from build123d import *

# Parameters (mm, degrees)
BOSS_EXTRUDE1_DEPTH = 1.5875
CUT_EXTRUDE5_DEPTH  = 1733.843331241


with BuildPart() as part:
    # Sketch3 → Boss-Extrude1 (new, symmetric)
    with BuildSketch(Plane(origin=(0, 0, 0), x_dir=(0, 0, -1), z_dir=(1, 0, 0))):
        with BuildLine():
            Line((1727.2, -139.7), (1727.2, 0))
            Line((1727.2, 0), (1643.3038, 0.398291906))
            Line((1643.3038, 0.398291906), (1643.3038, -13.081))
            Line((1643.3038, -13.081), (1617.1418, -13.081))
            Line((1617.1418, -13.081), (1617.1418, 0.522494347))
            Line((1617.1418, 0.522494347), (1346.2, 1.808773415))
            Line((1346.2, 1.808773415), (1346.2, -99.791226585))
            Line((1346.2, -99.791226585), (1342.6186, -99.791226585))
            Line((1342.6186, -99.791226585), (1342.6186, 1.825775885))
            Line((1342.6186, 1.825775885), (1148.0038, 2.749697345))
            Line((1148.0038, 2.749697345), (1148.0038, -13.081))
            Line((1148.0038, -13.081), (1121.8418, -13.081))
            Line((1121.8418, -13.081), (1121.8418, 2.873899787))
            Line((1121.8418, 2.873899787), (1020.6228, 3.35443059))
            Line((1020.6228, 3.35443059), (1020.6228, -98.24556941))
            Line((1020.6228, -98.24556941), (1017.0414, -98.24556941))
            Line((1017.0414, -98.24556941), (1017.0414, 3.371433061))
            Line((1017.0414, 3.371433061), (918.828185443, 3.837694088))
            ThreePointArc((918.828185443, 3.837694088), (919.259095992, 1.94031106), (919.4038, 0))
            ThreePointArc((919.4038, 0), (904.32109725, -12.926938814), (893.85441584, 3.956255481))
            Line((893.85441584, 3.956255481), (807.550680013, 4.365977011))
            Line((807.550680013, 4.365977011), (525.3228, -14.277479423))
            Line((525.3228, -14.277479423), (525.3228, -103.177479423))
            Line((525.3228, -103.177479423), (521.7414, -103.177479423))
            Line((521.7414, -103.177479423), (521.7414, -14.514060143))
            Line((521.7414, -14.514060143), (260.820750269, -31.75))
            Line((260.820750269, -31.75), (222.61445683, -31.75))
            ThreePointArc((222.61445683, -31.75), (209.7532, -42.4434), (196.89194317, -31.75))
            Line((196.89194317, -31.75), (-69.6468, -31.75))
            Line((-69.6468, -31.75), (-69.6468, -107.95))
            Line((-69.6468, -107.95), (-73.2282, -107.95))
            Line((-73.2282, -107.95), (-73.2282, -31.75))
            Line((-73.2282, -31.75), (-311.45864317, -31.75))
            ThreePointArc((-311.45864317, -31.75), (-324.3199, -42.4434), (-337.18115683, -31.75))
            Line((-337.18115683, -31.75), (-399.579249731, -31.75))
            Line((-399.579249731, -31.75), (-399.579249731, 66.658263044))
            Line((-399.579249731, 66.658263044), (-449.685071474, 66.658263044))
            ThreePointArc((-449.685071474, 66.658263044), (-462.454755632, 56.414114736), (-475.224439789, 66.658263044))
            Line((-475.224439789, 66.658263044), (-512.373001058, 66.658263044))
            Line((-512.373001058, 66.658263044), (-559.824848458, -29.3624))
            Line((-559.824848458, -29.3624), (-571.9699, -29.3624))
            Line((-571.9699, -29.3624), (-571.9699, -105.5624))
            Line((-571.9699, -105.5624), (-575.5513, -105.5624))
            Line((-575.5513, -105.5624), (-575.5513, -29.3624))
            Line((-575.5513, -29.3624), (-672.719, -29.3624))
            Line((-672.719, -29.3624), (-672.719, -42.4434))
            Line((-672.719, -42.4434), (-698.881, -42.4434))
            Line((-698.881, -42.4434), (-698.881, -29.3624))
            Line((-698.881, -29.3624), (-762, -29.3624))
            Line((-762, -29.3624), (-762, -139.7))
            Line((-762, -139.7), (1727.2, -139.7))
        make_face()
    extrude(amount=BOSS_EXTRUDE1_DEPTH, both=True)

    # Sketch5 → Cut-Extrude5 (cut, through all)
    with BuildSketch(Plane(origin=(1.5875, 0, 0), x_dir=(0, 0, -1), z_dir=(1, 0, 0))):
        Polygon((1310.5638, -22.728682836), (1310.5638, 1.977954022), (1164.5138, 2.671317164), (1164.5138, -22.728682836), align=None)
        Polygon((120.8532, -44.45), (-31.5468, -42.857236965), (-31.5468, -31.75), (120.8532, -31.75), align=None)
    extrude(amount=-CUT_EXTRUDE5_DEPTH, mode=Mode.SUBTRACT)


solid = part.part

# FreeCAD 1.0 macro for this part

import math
import FreeCAD as App
import Part
import Sketcher
Q = App.Units.Quantity


def add_polygon(sketch, points):
    """Adds a closed chain of lines whose ends are joined by coincident constraints."""
    first, n = sketch.GeometryCount, len(points)
    for a, b in zip(points, points[1:] + points[:1]):
        sketch.addGeometry(Part.LineSegment(App.Vector(*a, 0), App.Vector(*b, 0)), False)
    for i in range(n):
        sketch.addConstraint(Sketcher.Constraint("Coincident", first + i, 2, first + (i + 1) % n, 1))

doc = App.newDocument("Part")
params = doc.addObject("Spreadsheet::Sheet", "Params")
for row, (alias, value) in enumerate([
    ("sketch1_width", "4 in"),
    ("sketch1_width2", "3 in"),
    ("sketch1_height", "98 in"),
    ("sketch1_width3", "5.5 in"),
    ("sketch1_width4", "3.5 in"),
    ("pad1_length", "0.125 in"),
    ("sketch2_width", "1 in"),
    ("sketch2_height", "6 in"),
    ("sketch2_width2", "0.5 in"),
    ("sketch2_height2", "5.75 in"),
], start=1):
    params.set(f"A{row}", alias)
    params.set(f"B{row}", "=" + value)
    params.setAlias(f"B{row}", alias)

body = doc.addObject("PartDesign::Body", "Body")

# Sketch on YZ plane
sketch1 = body.newObject("Sketcher::SketchObject", "Sketch")
sketch1.AttachmentSupport = (doc.getObject("YZ_Plane"), [""])
sketch1.MapMode = "FlatFace"
sketch1.addGeometry(Part.LineSegment(App.Vector(-139.7, -1727.2, 0), App.Vector(0, -1727.2, 0)), False)
sketch1.addGeometry(Part.LineSegment(App.Vector(0, -1727.2, 0), App.Vector(0.4, -1643.3, 0)), False)
sketch1.addGeometry(Part.LineSegment(App.Vector(0.4, -1643.3, 0), App.Vector(-13.1, -1643.3, 0)), False)
sketch1.addGeometry(Part.LineSegment(App.Vector(-13.1, -1643.3, 0), App.Vector(-13.1, -1617.1, 0)), False)
sketch1.addGeometry(Part.LineSegment(App.Vector(-13.1, -1617.1, 0), App.Vector(0.5, -1617.1, 0)), False)
sketch1.addGeometry(Part.LineSegment(App.Vector(0.5, -1617.1, 0), App.Vector(1.8, -1346.2, 0)), False)
sketch1.addGeometry(Part.LineSegment(App.Vector(1.8, -1346.2, 0), App.Vector(-99.8, -1346.2, 0)), False)
sketch1.addGeometry(Part.LineSegment(App.Vector(-99.8, -1346.2, 0), App.Vector(-99.8, -1342.6, 0)), False)
sketch1.addGeometry(Part.LineSegment(App.Vector(-99.8, -1342.6, 0), App.Vector(1.8, -1342.6, 0)), False)
sketch1.addGeometry(Part.LineSegment(App.Vector(1.8, -1342.6, 0), App.Vector(2.7, -1148, 0)), False)
sketch1.addGeometry(Part.LineSegment(App.Vector(2.7, -1148, 0), App.Vector(-13.1, -1148, 0)), False)
sketch1.addGeometry(Part.LineSegment(App.Vector(-13.1, -1148, 0), App.Vector(-13.1, -1121.8, 0)), False)
sketch1.addGeometry(Part.LineSegment(App.Vector(-13.1, -1121.8, 0), App.Vector(2.9, -1121.8, 0)), False)
sketch1.addGeometry(Part.LineSegment(App.Vector(2.9, -1121.8, 0), App.Vector(3.4, -1020.6, 0)), False)
sketch1.addGeometry(Part.LineSegment(App.Vector(3.4, -1020.6, 0), App.Vector(-98.2, -1020.6, 0)), False)
sketch1.addGeometry(Part.LineSegment(App.Vector(-98.2, -1020.6, 0), App.Vector(-98.2, -1017, 0)), False)
sketch1.addGeometry(Part.LineSegment(App.Vector(-98.2, -1017, 0), App.Vector(3.4, -1017, 0)), False)
sketch1.addGeometry(Part.LineSegment(App.Vector(3.4, -1017, 0), App.Vector(3.8, -918.8, 0)), False)
sketch1.addGeometry(Part.ArcOfCircle(Part.Circle(App.Vector(0, -906.3, 0), App.Vector(0, 0, 1), 13.1), math.radians(-90), math.radians(-72.94)), False)
sketch1.addGeometry(Part.ArcOfCircle(Part.Circle(App.Vector(0, -906.3, 0), App.Vector(0, 0, 1), 13.1), math.radians(72), math.radians(270)), False)
sketch1.addGeometry(Part.LineSegment(App.Vector(4, -893.9, 0), App.Vector(4.4, -807.6, 0)), False)
sketch1.addGeometry(Part.LineSegment(App.Vector(4.4, -807.6, 0), App.Vector(-14.3, -525.3, 0)), False)
sketch1.addGeometry(Part.LineSegment(App.Vector(-14.3, -525.3, 0), App.Vector(-103.2, -525.3, 0)), False)
sketch1.addGeometry(Part.LineSegment(App.Vector(-103.2, -525.3, 0), App.Vector(-103.2, -521.7, 0)), False)
sketch1.addGeometry(Part.LineSegment(App.Vector(-103.2, -521.7, 0), App.Vector(-14.5, -521.7, 0)), False)
sketch1.addGeometry(Part.LineSegment(App.Vector(-14.5, -521.7, 0), App.Vector(-31.8, -260.8, 0)), False)
sketch1.addGeometry(Part.LineSegment(App.Vector(-31.8, -260.8, 0), App.Vector(-31.8, -222.6, 0)), False)
sketch1.addGeometry(Part.ArcOfCircle(Part.Circle(App.Vector(-29.4, -209.8, 0), App.Vector(0, 0, 1), 13.1), math.radians(101), math.radians(259)), False)
sketch1.addGeometry(Part.LineSegment(App.Vector(-31.8, -196.9, 0), App.Vector(-31.8, 69.6, 0)), False)
sketch1.addGeometry(Part.LineSegment(App.Vector(-31.8, 69.6, 0), App.Vector(-108, 69.6, 0)), False)
sketch1.addGeometry(Part.LineSegment(App.Vector(-108, 69.6, 0), App.Vector(-108, 73.2, 0)), False)
sketch1.addGeometry(Part.LineSegment(App.Vector(-108, 73.2, 0), App.Vector(-31.8, 73.2, 0)), False)
sketch1.addGeometry(Part.LineSegment(App.Vector(-31.8, 73.2, 0), App.Vector(-31.8, 311.5, 0)), False)
sketch1.addGeometry(Part.ArcOfCircle(Part.Circle(App.Vector(-29.4, 324.3, 0), App.Vector(0, 0, 1), 13.1), math.radians(101), math.radians(259)), False)
sketch1.addGeometry(Part.LineSegment(App.Vector(-31.8, 337.2, 0), App.Vector(-31.8, 399.6, 0)), False)
sketch1.addGeometry(Part.LineSegment(App.Vector(-31.8, 399.6, 0), App.Vector(66.7, 399.6, 0)), False)
sketch1.addGeometry(Part.LineSegment(App.Vector(66.7, 399.6, 0), App.Vector(66.7, 449.7, 0)), False)
sketch1.addGeometry(Part.ArcOfCircle(Part.Circle(App.Vector(69.5, 462.5, 0), App.Vector(0, 0, 1), 13.1), math.radians(103), math.radians(257)), False)
sketch1.addGeometry(Part.LineSegment(App.Vector(66.7, 475.2, 0), App.Vector(66.7, 512.4, 0)), False)
sketch1.addGeometry(Part.LineSegment(App.Vector(66.7, 512.4, 0), App.Vector(-29.4, 559.8, 0)), False)
sketch1.addGeometry(Part.LineSegment(App.Vector(-29.4, 559.8, 0), App.Vector(-29.4, 572, 0)), False)
sketch1.addGeometry(Part.LineSegment(App.Vector(-29.4, 572, 0), App.Vector(-105.6, 572, 0)), False)
sketch1.addGeometry(Part.LineSegment(App.Vector(-105.6, 572, 0), App.Vector(-105.6, 575.6, 0)), False)
sketch1.addGeometry(Part.LineSegment(App.Vector(-105.6, 575.6, 0), App.Vector(-29.4, 575.6, 0)), False)
sketch1.addGeometry(Part.LineSegment(App.Vector(-29.4, 575.6, 0), App.Vector(-29.4, 672.7, 0)), False)
sketch1.addGeometry(Part.LineSegment(App.Vector(-29.4, 672.7, 0), App.Vector(-42.4, 672.7, 0)), False)
sketch1.addGeometry(Part.LineSegment(App.Vector(-42.4, 672.7, 0), App.Vector(-42.4, 698.9, 0)), False)
sketch1.addGeometry(Part.LineSegment(App.Vector(-42.4, 698.9, 0), App.Vector(-29.4, 698.9, 0)), False)
sketch1.addGeometry(Part.LineSegment(App.Vector(-29.4, 698.9, 0), App.Vector(-29.4, 762, 0)), False)
sketch1.addGeometry(Part.LineSegment(App.Vector(-29.4, 762, 0), App.Vector(-139.7, 762, 0)), False)
sketch1.addGeometry(Part.LineSegment(App.Vector(-139.7, 762, 0), App.Vector(-139.7, -1727.2, 0)), False)
sketch1.addConstraint(Sketcher.Constraint("Coincident", 0, 2, 1, 1))
sketch1.addConstraint(Sketcher.Constraint("Coincident", 1, 2, 2, 1))
sketch1.addConstraint(Sketcher.Constraint("Coincident", 2, 2, 3, 1))
sketch1.addConstraint(Sketcher.Constraint("Coincident", 3, 2, 4, 1))
sketch1.addConstraint(Sketcher.Constraint("Coincident", 4, 2, 5, 1))
sketch1.addConstraint(Sketcher.Constraint("Coincident", 5, 2, 6, 1))
sketch1.addConstraint(Sketcher.Constraint("Coincident", 6, 2, 7, 1))
sketch1.addConstraint(Sketcher.Constraint("Coincident", 7, 2, 8, 1))
sketch1.addConstraint(Sketcher.Constraint("Coincident", 8, 2, 9, 1))
sketch1.addConstraint(Sketcher.Constraint("Coincident", 9, 2, 10, 1))
sketch1.addConstraint(Sketcher.Constraint("Coincident", 10, 2, 11, 1))
sketch1.addConstraint(Sketcher.Constraint("Coincident", 11, 2, 12, 1))
sketch1.addConstraint(Sketcher.Constraint("Coincident", 12, 2, 13, 1))
sketch1.addConstraint(Sketcher.Constraint("Coincident", 13, 2, 14, 1))
sketch1.addConstraint(Sketcher.Constraint("Coincident", 14, 2, 15, 1))
sketch1.addConstraint(Sketcher.Constraint("Coincident", 15, 2, 16, 1))
sketch1.addConstraint(Sketcher.Constraint("Coincident", 16, 2, 17, 1))
sketch1.addConstraint(Sketcher.Constraint("Coincident", 17, 2, 18, 2))
sketch1.addConstraint(Sketcher.Constraint("Tangent", 18, 1, 19, 2))
sketch1.addConstraint(Sketcher.Constraint("Coincident", 19, 1, 20, 1))
sketch1.addConstraint(Sketcher.Constraint("Coincident", 20, 2, 21, 1))
sketch1.addConstraint(Sketcher.Constraint("Coincident", 21, 2, 22, 1))
sketch1.addConstraint(Sketcher.Constraint("Coincident", 22, 2, 23, 1))
sketch1.addConstraint(Sketcher.Constraint("Coincident", 23, 2, 24, 1))
sketch1.addConstraint(Sketcher.Constraint("Coincident", 24, 2, 25, 1))
sketch1.addConstraint(Sketcher.Constraint("Coincident", 25, 2, 26, 1))
sketch1.addConstraint(Sketcher.Constraint("Coincident", 26, 2, 27, 2))
sketch1.addConstraint(Sketcher.Constraint("Coincident", 27, 1, 28, 1))
sketch1.addConstraint(Sketcher.Constraint("Coincident", 28, 2, 29, 1))
sketch1.addConstraint(Sketcher.Constraint("Coincident", 29, 2, 30, 1))
sketch1.addConstraint(Sketcher.Constraint("Coincident", 30, 2, 31, 1))
sketch1.addConstraint(Sketcher.Constraint("Coincident", 31, 2, 32, 1))
sketch1.addConstraint(Sketcher.Constraint("Coincident", 32, 2, 33, 2))
sketch1.addConstraint(Sketcher.Constraint("Coincident", 33, 1, 34, 1))
sketch1.addConstraint(Sketcher.Constraint("Coincident", 34, 2, 35, 1))
sketch1.addConstraint(Sketcher.Constraint("Coincident", 35, 2, 36, 1))
sketch1.addConstraint(Sketcher.Constraint("Coincident", 36, 2, 37, 2))
sketch1.addConstraint(Sketcher.Constraint("Coincident", 37, 1, 38, 1))
sketch1.addConstraint(Sketcher.Constraint("Coincident", 38, 2, 39, 1))
sketch1.addConstraint(Sketcher.Constraint("Coincident", 39, 2, 40, 1))
sketch1.addConstraint(Sketcher.Constraint("Coincident", 40, 2, 41, 1))
sketch1.addConstraint(Sketcher.Constraint("Coincident", 41, 2, 42, 1))
sketch1.addConstraint(Sketcher.Constraint("Coincident", 42, 2, 43, 1))
sketch1.addConstraint(Sketcher.Constraint("Coincident", 43, 2, 44, 1))
sketch1.addConstraint(Sketcher.Constraint("Coincident", 44, 2, 45, 1))
sketch1.addConstraint(Sketcher.Constraint("Coincident", 45, 2, 46, 1))
sketch1.addConstraint(Sketcher.Constraint("Coincident", 46, 2, 47, 1))
sketch1.addConstraint(Sketcher.Constraint("Coincident", 47, 2, 48, 1))
sketch1.addConstraint(Sketcher.Constraint("Coincident", 48, 2, 49, 1))
sketch1.addConstraint(Sketcher.Constraint("Coincident", 49, 2, 50, 1))
sketch1.addConstraint(Sketcher.Constraint("Coincident", 50, 2, 0, 1))
sketch1.addConstraint(Sketcher.Constraint("Horizontal", 0))
sketch1.addConstraint(Sketcher.Constraint("Horizontal", 2))
sketch1.addConstraint(Sketcher.Constraint("Vertical", 3))
sketch1.addConstraint(Sketcher.Constraint("Horizontal", 4))
sketch1.addConstraint(Sketcher.Constraint("Horizontal", 6))
sketch1.addConstraint(Sketcher.Constraint("Vertical", 7))
sketch1.addConstraint(Sketcher.Constraint("Horizontal", 8))
sketch1.addConstraint(Sketcher.Constraint("Horizontal", 10))
sketch1.addConstraint(Sketcher.Constraint("Vertical", 11))
sketch1.addConstraint(Sketcher.Constraint("Horizontal", 12))
sketch1.addConstraint(Sketcher.Constraint("Horizontal", 14))
sketch1.addConstraint(Sketcher.Constraint("Vertical", 15))
sketch1.addConstraint(Sketcher.Constraint("Horizontal", 16))
sketch1.addConstraint(Sketcher.Constraint("Horizontal", 22))
sketch1.addConstraint(Sketcher.Constraint("Vertical", 23))
sketch1.addConstraint(Sketcher.Constraint("Horizontal", 24))
sketch1.addConstraint(Sketcher.Constraint("Vertical", 26))
sketch1.addConstraint(Sketcher.Constraint("Vertical", 28))
sketch1.addConstraint(Sketcher.Constraint("Horizontal", 29))
sketch1.addConstraint(Sketcher.Constraint("Vertical", 30))
sketch1.addConstraint(Sketcher.Constraint("Horizontal", 31))
sketch1.addConstraint(Sketcher.Constraint("Vertical", 32))
sketch1.addConstraint(Sketcher.Constraint("Vertical", 34))
sketch1.addConstraint(Sketcher.Constraint("Horizontal", 35))
sketch1.addConstraint(Sketcher.Constraint("Vertical", 36))
sketch1.addConstraint(Sketcher.Constraint("Vertical", 38))
sketch1.addConstraint(Sketcher.Constraint("Vertical", 40))
sketch1.addConstraint(Sketcher.Constraint("Horizontal", 41))
sketch1.addConstraint(Sketcher.Constraint("Vertical", 42))
sketch1.addConstraint(Sketcher.Constraint("Horizontal", 43))
sketch1.addConstraint(Sketcher.Constraint("Vertical", 44))
sketch1.addConstraint(Sketcher.Constraint("Horizontal", 45))
sketch1.addConstraint(Sketcher.Constraint("Vertical", 46))
sketch1.addConstraint(Sketcher.Constraint("Horizontal", 47))
sketch1.addConstraint(Sketcher.Constraint("Vertical", 48))
sketch1.addConstraint(Sketcher.Constraint("Horizontal", 49))
sketch1.addConstraint(Sketcher.Constraint("Vertical", 50))
sketch1.addConstraint(Sketcher.Constraint("Equal", 18, 19))
sketch1.addConstraint(Sketcher.Constraint("Equal", 19, 27))
sketch1.addConstraint(Sketcher.Constraint("Equal", 27, 33))
sketch1.addConstraint(Sketcher.Constraint("Equal", 33, 37))
sketch1.addConstraint(Sketcher.Constraint("PointOnObject", 18, 3, -2))
sketch1.addConstraint(Sketcher.Constraint("PointOnObject", 0, 2, -2))
sketch1.addConstraint(Sketcher.Constraint("PointOnObject", 18, 1, -2))
sketch1.addConstraint(Sketcher.Constraint("Parallel", 1, 5))
sketch1.addConstraint(Sketcher.Constraint("Parallel", 5, 9))
sketch1.addConstraint(Sketcher.Constraint("Parallel", 9, 13))
sketch1.addConstraint(Sketcher.Constraint("Parallel", 13, 17))
sketch1.addConstraint(Sketcher.Constraint("Parallel", 17, 20))
sketch1.addConstraint(Sketcher.Constraint("Parallel", 21, 25))
sketch1.addConstraint(Sketcher.Constraint("Vertical", 27, 3, 33, 3))
sketch1.addConstraint(Sketcher.Constraint("Vertical", 3, 2, 10, 2))
sketch1.addConstraint(Sketcher.Constraint("Vertical", 26, 2, 27, 1))
sketch1.addConstraint(Sketcher.Constraint("Vertical", 28, 2, 31, 2))
sketch1.addConstraint(Sketcher.Constraint("Vertical", 32, 2, 33, 1))
sketch1.addConstraint(Sketcher.Constraint("Vertical", 36, 2, 37, 1))
sketch1.addConstraint(Sketcher.Constraint("Vertical", 33, 3, 39, 2))
sketch1.addConstraint(Sketcher.Constraint("Vertical", 40, 2, 43, 2))
sketch1.addConstraint(Sketcher.Constraint("Vertical", 44, 2, 47, 2))
sketch1.addConstraint(Sketcher.Constraint("Equal", 6, 14))
sketch1.addConstraint(Sketcher.Constraint("Equal", 8, 16))
sketch1.addConstraint(Sketcher.Constraint("Equal", 31, 41))
sketch1.addConstraint(Sketcher.Constraint("Equal", 3, 11))
sketch1.addConstraint(Sketcher.Constraint("Equal", 7, 15))
sketch1.addConstraint(Sketcher.Constraint("Equal", 15, 23))
sketch1.addConstraint(Sketcher.Constraint("Equal", 23, 30))
sketch1.addConstraint(Sketcher.Constraint("Equal", 30, 42))
sketch1.addConstraint(Sketcher.Constraint("Equal", 11, 46))
sketch1.addConstraint(Sketcher.Constraint("DistanceX", 6, 2, 6, 1, Q("4 in")))
sketch1.addConstraint(Sketcher.Constraint("DistanceX", 29, 2, 29, 1, Q("3 in")))
sketch1.addConstraint(Sketcher.Constraint("DistanceY", 50, 2, 50, 1, Q("98 in")))
sketch1.addConstraint(Sketcher.Constraint("DistanceX", 0, 1, 0, 2, Q("5.5 in")))
sketch1.addConstraint(Sketcher.Constraint("DistanceX", 22, 2, 22, 1, Q("3.5 in")))
sketch1.addConstraint(Sketcher.Constraint("DistanceY", 0, 2, -1, 1, Q("68 in")))
sketch1.addConstraint(Sketcher.Constraint("DistanceY", 5, 2, -1, 1, Q("53 in")))
sketch1.addConstraint(Sketcher.Constraint("Radius", 18, Q("0.515 in")))
sketch1.addConstraint(Sketcher.Constraint("DistanceY", 19, 3, 21, 2, Q("15 in")))
sketch1.addConstraint(Sketcher.Constraint("DistanceY", 27, 3, 28, 2, Q("11 in")))
sketch1.addConstraint(Sketcher.Constraint("DistanceY", 3, 1, 3, 2, Q("1.03 in")))
sketch1.addConstraint(Sketcher.Constraint("DistanceY", 13, 2, 18, 3, Q("4.5 in")))
sketch1.addConstraint(Sketcher.Constraint("DistanceX", 45, 2, 45, 1, Q("0.515 in")))
sketch1.addConstraint(Sketcher.Constraint("DistanceX", 49, 2, 49, 1, Q("4.344 in")))
sketch1.addConstraint(Sketcher.Constraint("DistanceY", 7, 1, 7, 2, Q("0.141 in")))
sketch1.addConstraint(Sketcher.Constraint("DistanceY", 48, 1, 48, 2, Q("2.485 in")))
sketch1.addConstraint(Sketcher.Constraint("DistanceX", 25, 2, -1, 1, Q("1.25 in")))
sketch1.addConstraint(Sketcher.Constraint("DistanceY", 44, 1, 44, 2, Q("3.8255 in")))
sketch1.addConstraint(Sketcher.Constraint("DistanceY", 18, 3, -1, 1, Q("35.682 in")))
sketch1.addConstraint(Sketcher.Constraint("DistanceY", 27, 3, -1, 1, Q("8.258 in")))
sketch1.addConstraint(Sketcher.Constraint("DistanceY", 1, 2, -1, 1, Q("64.697 in")))
sketch1.addConstraint(Sketcher.Constraint("DistanceX", 2, 2, -1, 1, Q("0.515 in")))
sketch1.addConstraint(Sketcher.Constraint("DistanceY", 9, 2, -1, 1, Q("45.197 in")))
sketch1.addConstraint(Sketcher.Constraint("DistanceX", 12, 1, 12, 2, 15.9549))
sketch1.addConstraint(Sketcher.Constraint("DistanceY", -1, 1, 33, 3, Q("12.7685 in")))
sketch1.addConstraint(Sketcher.Constraint("DistanceX", 2, 2, 2, 1, 13.479292))
sketch1.addConstraint(Sketcher.Constraint("DistanceX", 24, 1, 24, 2, 88.663419))
sketch1.addConstraint(Sketcher.Constraint("DistanceY", 36, 1, 36, 2, 50.105822))
sketch1.addConstraint(Sketcher.Constraint("DistanceY", 38, 1, 38, 2, 37.148561))
sketch1.addConstraint(Sketcher.Constraint("DistanceY", 40, 1, 40, 2, 12.145052))
sketch1.addConstraint(Sketcher.Constraint("DistanceY", -1, 1, 38, 2, 512.373001))
sketch1.addConstraint(Sketcher.Constraint("DistanceY", 33, 1, 37, 3, 125.273599))
sketch1.addConstraint(Sketcher.Constraint("Distance", 17, 98.214321))
sketch1.addConstraint(Sketcher.Constraint("Distance", 20, 86.304708))
sketch1.addConstraint(Sketcher.Constraint("Distance", 39, 107.105768))
sketch1.addConstraint(Sketcher.Constraint("DistanceX", 4, 1, 4, 2, 13.603494))
sketch1.addConstraint(Sketcher.Constraint("DistanceY", 26, 1, 26, 2, 38.206293))
sketch1.addConstraint(Sketcher.Constraint("DistanceY", 20, 2, -1, 1, 807.55068))
sketch1.setExpression("Constraints[119]", "Params.sketch1_width")
sketch1.setExpression("Constraints[120]", "Params.sketch1_width2")
sketch1.setExpression("Constraints[121]", "Params.sketch1_height")
sketch1.setExpression("Constraints[122]", "Params.sketch1_width3")
sketch1.setExpression("Constraints[123]", "Params.sketch1_width4")
pad1 = body.newObject("PartDesign::Pad", "Pad")
pad1.Profile = sketch1
pad1.setExpression("Length", "Params.pad1_length")
pad1.Midplane = True

# Sketch on YZ plane
sketch2 = body.newObject("Sketcher::SketchObject", "Sketch001")
sketch2.AttachmentSupport = (doc.getObject("YZ_Plane"), [""])
sketch2.MapMode = "FlatFace"
sketch2.AttachmentOffset = App.Placement(App.Vector(0, 0, 0.0625 * 25.4), App.Rotation())
add_polygon(sketch2, [(-23, -1311), (2, -1311), (3, -1165), (-23, -1165)])  # lines 0-3
add_polygon(sketch2, [(-43, 32), (-44, -121), (-32, -121), (-32, 32)])  # lines 4-7
sketch2.addConstraint(Sketcher.Constraint("Horizontal", 0))
sketch2.addConstraint(Sketcher.Constraint("Horizontal", 2))
sketch2.addConstraint(Sketcher.Constraint("Vertical", 3))
sketch2.addConstraint(Sketcher.Constraint("Horizontal", 5))
sketch2.addConstraint(Sketcher.Constraint("Vertical", 6))
sketch2.addConstraint(Sketcher.Constraint("Horizontal", 7))
sketch2.addConstraint(Sketcher.Constraint("DistanceX", 2, 2, 2, 1, Q("1 in")))
sketch2.addConstraint(Sketcher.Constraint("DistanceY", 6, 1, 6, 2, Q("6 in")))
sketch2.addConstraint(Sketcher.Constraint("DistanceX", 5, 1, 5, 2, Q("0.5 in")))
sketch2.addConstraint(Sketcher.Constraint("DistanceY", 3, 2, 3, 1, Q("5.75 in")))
sketch2.addConstraint(Sketcher.Constraint("DistanceX", 4, 2, -1, 1, Q("1.75 in")))
sketch2.addConstraint(Sketcher.Constraint("DistanceY", 0, 2, -1, 1, Q("51.597 in")))
sketch2.addConstraint(Sketcher.Constraint("DistanceY", 4, 2, -1, 1, Q("4.758 in")))
sketch2.addConstraint(Sketcher.Constraint("DistanceX", 0, 1, 0, 2, 24.706637))
sketch2.addConstraint(Sketcher.Constraint("DistanceX", 7, 2, 7, 1, 11.107237))
sketch2.addConstraint(Sketcher.Constraint("DistanceX", -1, 1, 0, 2, 1.977954))
sketch2.setExpression("Constraints[14]", "Params.sketch2_width")
sketch2.setExpression("Constraints[15]", "Params.sketch2_height")
sketch2.setExpression("Constraints[16]", "Params.sketch2_width2")
sketch2.setExpression("Constraints[17]", "Params.sketch2_height2")
pocket1 = body.newObject("PartDesign::Pocket", "Pocket")
pocket1.Profile = sketch2
pocket1.Type = "ThroughAll"

doc.recompute()
